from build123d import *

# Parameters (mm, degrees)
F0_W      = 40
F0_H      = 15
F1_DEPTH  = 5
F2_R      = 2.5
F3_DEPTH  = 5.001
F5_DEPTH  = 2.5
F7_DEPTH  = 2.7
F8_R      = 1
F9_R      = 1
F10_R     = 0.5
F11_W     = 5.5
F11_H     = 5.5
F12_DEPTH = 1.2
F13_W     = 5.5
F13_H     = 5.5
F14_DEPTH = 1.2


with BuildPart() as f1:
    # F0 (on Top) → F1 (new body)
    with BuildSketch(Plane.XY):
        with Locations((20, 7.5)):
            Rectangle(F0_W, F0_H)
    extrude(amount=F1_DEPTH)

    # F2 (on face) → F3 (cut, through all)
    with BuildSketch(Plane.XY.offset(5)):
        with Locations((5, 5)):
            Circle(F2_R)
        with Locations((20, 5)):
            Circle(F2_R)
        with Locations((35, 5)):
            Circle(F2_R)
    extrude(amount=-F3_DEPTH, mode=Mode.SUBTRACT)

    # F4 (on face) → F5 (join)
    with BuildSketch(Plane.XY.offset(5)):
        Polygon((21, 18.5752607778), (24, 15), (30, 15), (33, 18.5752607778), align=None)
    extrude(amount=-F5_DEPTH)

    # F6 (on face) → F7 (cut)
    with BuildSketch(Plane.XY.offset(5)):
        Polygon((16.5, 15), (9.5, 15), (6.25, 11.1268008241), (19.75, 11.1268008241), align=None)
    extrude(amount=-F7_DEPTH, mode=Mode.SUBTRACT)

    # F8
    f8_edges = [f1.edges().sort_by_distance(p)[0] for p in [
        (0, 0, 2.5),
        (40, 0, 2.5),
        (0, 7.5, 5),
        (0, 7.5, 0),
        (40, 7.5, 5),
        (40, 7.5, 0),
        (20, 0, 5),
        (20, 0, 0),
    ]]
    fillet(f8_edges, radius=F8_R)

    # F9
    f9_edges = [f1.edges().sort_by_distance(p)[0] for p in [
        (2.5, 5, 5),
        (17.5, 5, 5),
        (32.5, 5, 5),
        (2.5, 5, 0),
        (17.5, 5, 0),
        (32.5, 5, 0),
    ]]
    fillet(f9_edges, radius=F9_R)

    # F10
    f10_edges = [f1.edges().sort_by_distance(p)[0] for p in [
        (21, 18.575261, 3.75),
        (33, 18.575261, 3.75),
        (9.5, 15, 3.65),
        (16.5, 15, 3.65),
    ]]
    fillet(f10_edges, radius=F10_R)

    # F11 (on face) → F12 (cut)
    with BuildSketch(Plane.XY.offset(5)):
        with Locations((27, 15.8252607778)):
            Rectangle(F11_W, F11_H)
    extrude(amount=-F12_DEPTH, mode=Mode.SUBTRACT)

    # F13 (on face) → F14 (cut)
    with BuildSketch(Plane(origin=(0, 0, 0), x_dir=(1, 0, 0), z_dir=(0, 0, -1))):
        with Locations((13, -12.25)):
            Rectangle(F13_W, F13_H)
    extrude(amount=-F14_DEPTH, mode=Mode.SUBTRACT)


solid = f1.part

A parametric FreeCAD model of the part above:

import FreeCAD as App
import Part
import Sketcher

V = App.Vector
Q = App.Units.Quantity


def edges_at(feature, points):
    """Names of the edges that pass closest to the given points."""
    edges = feature.Shape.Edges
    near = lambda p: min(range(len(edges)), key=lambda i: edges[i].distToShape(Part.Vertex(*p))[0])
    return sorted({f"Edge{near(p) + 1}" for p in points})

doc = App.newDocument("Part")
body = doc.addObject("PartDesign::Body", "Body")

# Sketch on XY plane
sketch1 = body.newObject("Sketcher::SketchObject", "Sketch")
sketch1.AttachmentSupport = (doc.getObject("XY_Plane"), [""])
sketch1.MapMode = "FlatFace"
sketch1.addGeometry(Part.LineSegment(V(0, 15, 0), V(0, 0, 0)), False)
sketch1.addGeometry(Part.LineSegment(V(0, 0, 0), V(40, 0, 0)), False)
sketch1.addGeometry(Part.LineSegment(V(40, 0, 0), V(40, 15, 0)), False)
sketch1.addGeometry(Part.LineSegment(V(40, 15, 0), V(0, 15, 0)), False)
sketch1.addConstraint(Sketcher.Constraint("Coincident", 0, 2, 1, 1))
sketch1.addConstraint(Sketcher.Constraint("Coincident", 1, 2, 2, 1))
sketch1.addConstraint(Sketcher.Constraint("Coincident", 2, 2, 3, 1))
sketch1.addConstraint(Sketcher.Constraint("Coincident", 3, 2, 0, 1))
sketch1.addConstraint(Sketcher.Constraint("Vertical", 0))
sketch1.addConstraint(Sketcher.Constraint("Horizontal", 1))
sketch1.addConstraint(Sketcher.Constraint("Vertical", 2))
sketch1.addConstraint(Sketcher.Constraint("Horizontal", 3))
sketch1.addConstraint(Sketcher.Constraint("Coincident", 0, 2, -1, 1))
sketch1.addConstraint(Sketcher.Constraint("DistanceX", 1, 1, 1, 2, 40.0))
sketch1.addConstraint(Sketcher.Constraint("DistanceY", 0, 2, 0, 1, 15.0))
pad1 = body.newObject("PartDesign::Pad", "Pad")
pad1.Profile = sketch1
pad1.Length = 5

# Sketch on XY plane
sketch2 = body.newObject("Sketcher::SketchObject", "Sketch001")
sketch2.AttachmentSupport = (doc.getObject("XY_Plane"), [""])
sketch2.MapMode = "FlatFace"
sketch2.AttachmentOffset = App.Placement(V(0, 0, 5), App.Rotation())
sketch2.addGeometry(Part.Circle(V(5, 5, 0), V(0, 0, 1), 2.5), False)
sketch2.addGeometry(Part.Circle(V(20, 5, 0), V(0, 0, 1), 2.5), False)
sketch2.addGeometry(Part.Circle(V(35, 5, 0), V(0, 0, 1), 2.5), False)
sketch2.addConstraint(Sketcher.Constraint("Equal", 0, 1))
sketch2.addConstraint(Sketcher.Constraint("Equal", 1, 2))
sketch2.addConstraint(Sketcher.Constraint("Horizontal", 0, 3, 1, 3))
sketch2.addConstraint(Sketcher.Constraint("Horizontal", 1, 3, 2, 3))
sketch2.addConstraint(Sketcher.Constraint("Diameter", 0, 5.0))
sketch2.addConstraint(Sketcher.Constraint("DistanceX", -1, 1, 0, 3, 5.0))
sketch2.addConstraint(Sketcher.Constraint("DistanceY", -1, 1, 0, 3, 5.0))
sketch2.addConstraint(Sketcher.Constraint("DistanceX", -1, 1, 1, 3, 20.0))
sketch2.addConstraint(Sketcher.Constraint("DistanceX", -1, 1, 2, 3, 35.0))
pocket1 = body.newObject("PartDesign::Pocket", "Pocket")
pocket1.Profile = sketch2
pocket1.Type = "ThroughAll"

# Sketch on XY plane
sketch3 = body.newObject("Sketcher::SketchObject", "Sketch002")
sketch3.AttachmentSupport = (doc.getObject("XY_Plane"), [""])
sketch3.MapMode = "FlatFace"
sketch3.AttachmentOffset = App.Placement(V(0, 0, 5), App.Rotation())
sketch3.addGeometry(Part.LineSegment(V(21, 18.6, 0), V(24, 15, 0)), False)
sketch3.addGeometry(Part.LineSegment(V(24, 15, 0), V(30, 15, 0)), False)
sketch3.addGeometry(Part.LineSegment(V(30, 15, 0), V(33, 18.6, 0)), False)
sketch3.addGeometry(Part.LineSegment(V(33, 18.6, 0), V(21, 18.6, 0)), False)
sketch3.addConstraint(Sketcher.Constraint("Coincident", 0, 2, 1, 1))
sketch3.addConstraint(Sketcher.Constraint("Coincident", 1, 2, 2, 1))
sketch3.addConstraint(Sketcher.Constraint("Coincident", 2, 2, 3, 1))
sketch3.addConstraint(Sketcher.Constraint("Coincident", 3, 2, 0, 1))
sketch3.addConstraint(Sketcher.Constraint("Horizontal", 1))
sketch3.addConstraint(Sketcher.Constraint("Horizontal", 3))
sketch3.addConstraint(Sketcher.Constraint("Equal", 0, 2))
sketch3.addConstraint(Sketcher.Constraint("DistanceX", 1, 1, 1, 2, 6.0))
sketch3.addConstraint(Sketcher.Constraint("DistanceX", 3, 2, 3, 1, 12.0))
sketch3.addConstraint(Sketcher.Constraint("Angle", 0, Q("-50 deg")))
sketch3.addConstraint(Sketcher.Constraint("DistanceX", -1, 1, 0, 2, 24.0))
sketch3.addConstraint(Sketcher.Constraint("DistanceY", -1, 1, 0, 2, 15.0))
pad2 = body.newObject("PartDesign::Pad", "Pad001")
pad2.Profile = sketch3
pad2.Length = 2.5
pad2.Reversed = True

# Sketch on XY plane
sketch4 = body.newObject("Sketcher::SketchObject", "Sketch003")
sketch4.AttachmentSupport = (doc.getObject("XY_Plane"), [""])
sketch4.MapMode = "FlatFace"
sketch4.AttachmentOffset = App.Placement(V(0, 0, 5), App.Rotation())
sketch4.addGeometry(Part.LineSegment(V(16, 15, 0), V(10, 15, 0)), False)
sketch4.addGeometry(Part.LineSegment(V(10, 15, 0), V(6, 11, 0)), False)
sketch4.addGeometry(Part.LineSegment(V(6, 11, 0), V(20, 11, 0)), False)
sketch4.addGeometry(Part.LineSegment(V(20, 11, 0), V(16, 15, 0)), False)
sketch4.addConstraint(Sketcher.Constraint("Coincident", 0, 2, 1, 1))
sketch4.addConstraint(Sketcher.Constraint("Coincident", 1, 2, 2, 1))
sketch4.addConstraint(Sketcher.Constraint("Coincident", 2, 2, 3, 1))
sketch4.addConstraint(Sketcher.Constraint("Coincident", 3, 2, 0, 1))
sketch4.addConstraint(Sketcher.Constraint("Horizontal", 0))
sketch4.addConstraint(Sketcher.Constraint("Horizontal", 2))
sketch4.addConstraint(Sketcher.Constraint("Equal", 1, 3))
sketch4.addConstraint(Sketcher.Constraint("DistanceX", 0, 2, 0, 1, 7.0))
sketch4.addConstraint(Sketcher.Constraint("Angle", 1, Q("-130 deg")))
sketch4.addConstraint(Sketcher.Constraint("DistanceX", 2, 1, 2, 2, 13.5))
sketch4.addConstraint(Sketcher.Constraint("DistanceY", -1, 1, 0, 2, 15.0))
sketch4.addConstraint(Sketcher.Constraint("DistanceX", -1, 1, 0, 2, 9.5))
pocket2 = body.newObject("PartDesign::Pocket", "Pocket001")
pocket2.Profile = sketch4
pocket2.Length = 2.7
doc.recompute()

fillet = body.newObject("PartDesign::Fillet", "Fillet")
fillet.Base = (pocket2, edges_at(pocket2, [
    (0, 0, 2.5),
    (40, 0, 2.5),
    (0, 7.5, 5),
    (0, 7.5, 0),
    (40, 7.5, 5),
    (40, 7.5, 0),
    (20, 0, 5),
    (20, 0, 0),
]))
fillet.Radius = 1
doc.recompute()

fillet2 = body.newObject("PartDesign::Fillet", "Fillet001")
fillet2.Base = (fillet, edges_at(fillet, [
    (2.5, 5, 5),
    (17.5, 5, 5),
    (32.5, 5, 5),
    (2.5, 5, 0),
    (17.5, 5, 0),
    (32.5, 5, 0),
]))
fillet2.Radius = 1
doc.recompute()

fillet3 = body.newObject("PartDesign::Fillet", "Fillet002")
fillet3.Base = (fillet2, edges_at(fillet2, [
    (21, 18.575, 3.75),
    (33, 18.575, 3.75),
    (9.5, 15, 3.65),
    (16.5, 15, 3.65),
]))
fillet3.Radius = 0.5

# Sketch on XY plane
sketch5 = body.newObject("Sketcher::SketchObject", "Sketch004")
sketch5.AttachmentSupport = (doc.getObject("XY_Plane"), [""])
sketch5.MapMode = "FlatFace"
sketch5.AttachmentOffset = App.Placement(V(0, 0, 5), App.Rotation())
sketch5.addGeometry(Part.LineSegment(V(24, 19, 0), V(24, 13, 0)), False)
sketch5.addGeometry(Part.LineSegment(V(24, 13, 0), V(30, 13, 0)), False)
sketch5.addGeometry(Part.LineSegment(V(30, 13, 0), V(30, 19, 0)), False)
sketch5.addGeometry(Part.LineSegment(V(30, 19, 0), V(24, 19, 0)), False)
sketch5.addConstraint(Sketcher.Constraint("Coincident", 0, 2, 1, 1))
sketch5.addConstraint(Sketcher.Constraint("Coincident", 1, 2, 2, 1))
sketch5.addConstraint(Sketcher.Constraint("Coincident", 2, 2, 3, 1))
sketch5.addConstraint(Sketcher.Constraint("Coincident", 3, 2, 0, 1))
sketch5.addConstraint(Sketcher.Constraint("Vertical", 0))
sketch5.addConstraint(Sketcher.Constraint("Horizontal", 1))
sketch5.addConstraint(Sketcher.Constraint("Vertical", 2))
sketch5.addConstraint(Sketcher.Constraint("Horizontal", 3))
sketch5.addConstraint(Sketcher.Constraint("Equal", 3, 0))
sketch5.addConstraint(Sketcher.Constraint("DistanceX", 1, 1, 1, 2, 5.5))
sketch5.addConstraint(Sketcher.Constraint("DistanceX", -1, 1, 0, 2, 24.25))
sketch5.addConstraint(Sketcher.Constraint("DistanceY", -1, 1, 0, 2, 13.075261))
pocket3 = body.newObject("PartDesign::Pocket", "Pocket002")
pocket3.Profile = sketch5
pocket3.Length = 1.2

# Sketch on XY plane
sketch6 = body.newObject("Sketcher::SketchObject", "Sketch005")
sketch6.AttachmentSupport = (doc.getObject("XY_Plane"), [""])
sketch6.MapMode = "FlatFace"
sketch6.addGeometry(Part.LineSegment(V(10, 10, 0), V(10, 15, 0)), False)
sketch6.addGeometry(Part.LineSegment(V(10, 15, 0), V(16, 15, 0)), False)
sketch6.addGeometry(Part.LineSegment(V(16, 15, 0), V(16, 10, 0)), False)
sketch6.addGeometry(Part.LineSegment(V(16, 10, 0), V(10, 10, 0)), False)
sketch6.addConstraint(Sketcher.Constraint("Coincident", 0, 2, 1, 1))
sketch6.addConstraint(Sketcher.Constraint("Coincident", 1, 2, 2, 1))
sketch6.addConstraint(Sketcher.Constraint("Coincident", 2, 2, 3, 1))
sketch6.addConstraint(Sketcher.Constraint("Coincident", 3, 2, 0, 1))
sketch6.addConstraint(Sketcher.Constraint("Vertical", 0))
sketch6.addConstraint(Sketcher.Constraint("Horizontal", 1))
sketch6.addConstraint(Sketcher.Constraint("Vertical", 2))
sketch6.addConstraint(Sketcher.Constraint("Horizontal", 3))
sketch6.addConstraint(Sketcher.Constraint("Equal", 3, 0))
sketch6.addConstraint(Sketcher.Constraint("DistanceX", 1, 1, 1, 2, 5.5))
sketch6.addConstraint(Sketcher.Constraint("DistanceY", -1, 1, 0, 2, 15.0))
sketch6.addConstraint(Sketcher.Constraint("DistanceX", -1, 1, 0, 2, 10.25))
pocket4 = body.newObject("PartDesign::Pocket", "Pocket003")
pocket4.Profile = sketch6
pocket4.Length = 1.2
pocket4.Reversed = True

doc.recompute()
